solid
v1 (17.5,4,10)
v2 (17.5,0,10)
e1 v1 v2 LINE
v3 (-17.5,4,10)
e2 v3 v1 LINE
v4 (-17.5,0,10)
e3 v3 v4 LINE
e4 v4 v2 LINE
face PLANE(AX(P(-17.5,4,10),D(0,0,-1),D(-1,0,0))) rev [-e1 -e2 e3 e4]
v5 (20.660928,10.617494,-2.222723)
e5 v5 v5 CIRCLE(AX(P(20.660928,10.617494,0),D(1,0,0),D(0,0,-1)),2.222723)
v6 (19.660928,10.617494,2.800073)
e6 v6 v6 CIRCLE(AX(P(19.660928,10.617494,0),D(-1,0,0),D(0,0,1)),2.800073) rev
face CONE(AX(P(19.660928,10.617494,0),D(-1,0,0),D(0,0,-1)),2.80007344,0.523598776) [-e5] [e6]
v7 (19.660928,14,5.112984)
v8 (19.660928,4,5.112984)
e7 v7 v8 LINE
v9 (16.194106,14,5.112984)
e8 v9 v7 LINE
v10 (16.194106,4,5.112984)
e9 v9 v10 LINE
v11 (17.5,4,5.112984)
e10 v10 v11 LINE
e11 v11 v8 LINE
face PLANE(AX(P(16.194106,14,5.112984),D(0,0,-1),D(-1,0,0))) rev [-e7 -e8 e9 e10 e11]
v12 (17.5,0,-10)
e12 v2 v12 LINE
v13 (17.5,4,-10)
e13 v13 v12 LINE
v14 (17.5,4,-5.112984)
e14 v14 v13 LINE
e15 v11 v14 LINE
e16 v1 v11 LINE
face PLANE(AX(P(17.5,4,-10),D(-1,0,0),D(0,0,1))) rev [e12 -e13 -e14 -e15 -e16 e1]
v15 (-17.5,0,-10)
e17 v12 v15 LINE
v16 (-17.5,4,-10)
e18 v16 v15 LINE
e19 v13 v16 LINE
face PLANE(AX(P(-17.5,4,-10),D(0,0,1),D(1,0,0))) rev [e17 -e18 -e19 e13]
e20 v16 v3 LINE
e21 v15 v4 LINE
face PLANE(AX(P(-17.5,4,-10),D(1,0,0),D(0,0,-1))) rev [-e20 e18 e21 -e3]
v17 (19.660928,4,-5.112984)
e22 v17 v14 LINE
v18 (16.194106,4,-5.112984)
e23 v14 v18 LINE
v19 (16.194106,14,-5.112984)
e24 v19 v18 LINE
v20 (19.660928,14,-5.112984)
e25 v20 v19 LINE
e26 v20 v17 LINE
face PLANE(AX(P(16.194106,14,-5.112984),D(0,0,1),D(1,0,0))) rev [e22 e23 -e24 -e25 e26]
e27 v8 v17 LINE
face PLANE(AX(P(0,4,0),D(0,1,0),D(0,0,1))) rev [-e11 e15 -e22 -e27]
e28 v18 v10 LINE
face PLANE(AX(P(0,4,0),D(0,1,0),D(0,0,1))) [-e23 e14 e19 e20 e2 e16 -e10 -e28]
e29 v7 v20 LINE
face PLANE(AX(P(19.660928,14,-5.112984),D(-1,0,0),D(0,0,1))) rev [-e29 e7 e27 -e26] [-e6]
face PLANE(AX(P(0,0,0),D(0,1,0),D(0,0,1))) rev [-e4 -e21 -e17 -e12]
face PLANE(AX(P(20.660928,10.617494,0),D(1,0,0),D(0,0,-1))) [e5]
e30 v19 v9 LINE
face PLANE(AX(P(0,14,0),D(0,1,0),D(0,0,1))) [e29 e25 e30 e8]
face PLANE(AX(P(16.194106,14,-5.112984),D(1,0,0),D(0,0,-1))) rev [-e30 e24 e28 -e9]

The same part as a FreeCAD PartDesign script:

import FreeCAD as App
import Part
import Sketcher
from FreeCAD import Vector


def add_polygon(sketch, points):
    """Adds a closed chain of lines whose ends are joined by coincident constraints."""
    first, n = sketch.GeometryCount, len(points)
    for a, b in zip(points, points[1:] + points[:1]):
        sketch.addGeometry(Part.LineSegment(App.Vector(*a, 0), App.Vector(*b, 0)), False)
    for i in range(n):
        sketch.addConstraint(Sketcher.Constraint("Coincident", first + i, 2, first + (i + 1) % n, 1))

doc = App.newDocument("Part")
params = doc.addObject("Spreadsheet::Sheet", "Params")
for row, (alias, value) in enumerate([
    ("sketch1_width", "35 mm"),
    ("sketch1_height", "20 mm"),
    ("pad1_length", "4 mm"),
    ("pad2_length", "10 mm"),
    ("pad3_length", "1 mm"),
    ("pad3_taper", "-30 deg"),
], start=1):
    params.set(f"A{row}", alias)
    params.set(f"B{row}", "=" + value)
    params.setAlias(f"B{row}", alias)

body = doc.addObject("PartDesign::Body", "Body")

# Sketch on XZ plane
sketch1 = body.newObject("Sketcher::SketchObject", "Sketch")
sketch1.AttachmentSupport = (doc.getObject("XZ_Plane"), [""])
sketch1.MapMode = "FlatFace"
add_polygon(sketch1, [(-18, -10), (-18, 10), (18, 10), (18, -10)])  # lines 0-3
sketch1.addConstraint([
    Sketcher.Constraint("Vertical", 0),
    Sketcher.Constraint("Horizontal", 1),
    Sketcher.Constraint("Vertical", 2),
    Sketcher.Constraint("Horizontal", 3),
    Sketcher.Constraint("Symmetric", 0, 2, 2, 2, -1, 1),
    Sketcher.Constraint("DistanceX", 1, 1, 1, 2, 35.0),
    Sketcher.Constraint("DistanceY", 0, 1, 0, 2, 20.0),
])
sketch1.setExpression("Constraints[9]", "Params.sketch1_width")
sketch1.setExpression("Constraints[10]", "Params.sketch1_height")
pad1 = body.newObject("PartDesign::Pad", "Pad")
pad1.Profile = sketch1
pad1.setExpression("Length", "Params.pad1_length")
pad1.Reversed = True

# Sketch on XZ plane
sketch2 = body.newObject("Sketcher::SketchObject", "Sketch001")
sketch2.AttachmentSupport = (doc.getObject("XZ_Plane"), [""])
sketch2.MapMode = "FlatFace"
sketch2.AttachmentOffset = App.Placement(Vector(0, 0, -4), App.Rotation())
add_polygon(sketch2, [(16.2, -5.1), (16.2, 5.1), (19.7, 5.1), (19.7, -5.1)])  # lines 0-3
sketch2.addConstraint([
    Sketcher.Constraint("Vertical", 0),
    Sketcher.Constraint("Horizontal", 1),
    Sketcher.Constraint("Vertical", 2),
    Sketcher.Constraint("Horizontal", 3),
    Sketcher.Constraint("DistanceX", 1, 1, 1, 2, 3.466822),
    Sketcher.Constraint("DistanceY", 0, 1, 0, 2, 10.225968),
    Sketcher.Constraint("DistanceX", -1, 1, 0, 2, 16.194106),
    Sketcher.Constraint("DistanceY", -1, 1, 0, 2, 5.112984),
])
pad2 = body.newObject("PartDesign::Pad", "Pad001")
pad2.Profile = sketch2
pad2.setExpression("Length", "Params.pad2_length")
pad2.Reversed = True

# Sketch on YZ plane
sketch3 = body.newObject("Sketcher::SketchObject", "Sketch002")
sketch3.AttachmentSupport = (doc.getObject("YZ_Plane"), [""])
sketch3.MapMode = "FlatFace"
sketch3.AttachmentOffset = App.Placement(Vector(0, 0, 19.660928), App.Rotation())
sketch3.addGeometry(Part.Circle(Vector(10.6, 0, 0), Vector(0, 0, 1), 2.8), False)
sketch3.addConstraint([
    Sketcher.Constraint("PointOnObject", 0, 3, -1),
    Sketcher.Constraint("Diameter", 0, 5.600147),
    Sketcher.Constraint("DistanceX", -1, 1, 0, 3, 10.617494),
])
pad3 = body.newObject("PartDesign::Pad", "Pad002")
pad3.Profile = sketch3
pad3.setExpression("Length", "Params.pad3_length")
pad3.setExpression("TaperAngle", "Params.pad3_taper")

doc.recompute()
